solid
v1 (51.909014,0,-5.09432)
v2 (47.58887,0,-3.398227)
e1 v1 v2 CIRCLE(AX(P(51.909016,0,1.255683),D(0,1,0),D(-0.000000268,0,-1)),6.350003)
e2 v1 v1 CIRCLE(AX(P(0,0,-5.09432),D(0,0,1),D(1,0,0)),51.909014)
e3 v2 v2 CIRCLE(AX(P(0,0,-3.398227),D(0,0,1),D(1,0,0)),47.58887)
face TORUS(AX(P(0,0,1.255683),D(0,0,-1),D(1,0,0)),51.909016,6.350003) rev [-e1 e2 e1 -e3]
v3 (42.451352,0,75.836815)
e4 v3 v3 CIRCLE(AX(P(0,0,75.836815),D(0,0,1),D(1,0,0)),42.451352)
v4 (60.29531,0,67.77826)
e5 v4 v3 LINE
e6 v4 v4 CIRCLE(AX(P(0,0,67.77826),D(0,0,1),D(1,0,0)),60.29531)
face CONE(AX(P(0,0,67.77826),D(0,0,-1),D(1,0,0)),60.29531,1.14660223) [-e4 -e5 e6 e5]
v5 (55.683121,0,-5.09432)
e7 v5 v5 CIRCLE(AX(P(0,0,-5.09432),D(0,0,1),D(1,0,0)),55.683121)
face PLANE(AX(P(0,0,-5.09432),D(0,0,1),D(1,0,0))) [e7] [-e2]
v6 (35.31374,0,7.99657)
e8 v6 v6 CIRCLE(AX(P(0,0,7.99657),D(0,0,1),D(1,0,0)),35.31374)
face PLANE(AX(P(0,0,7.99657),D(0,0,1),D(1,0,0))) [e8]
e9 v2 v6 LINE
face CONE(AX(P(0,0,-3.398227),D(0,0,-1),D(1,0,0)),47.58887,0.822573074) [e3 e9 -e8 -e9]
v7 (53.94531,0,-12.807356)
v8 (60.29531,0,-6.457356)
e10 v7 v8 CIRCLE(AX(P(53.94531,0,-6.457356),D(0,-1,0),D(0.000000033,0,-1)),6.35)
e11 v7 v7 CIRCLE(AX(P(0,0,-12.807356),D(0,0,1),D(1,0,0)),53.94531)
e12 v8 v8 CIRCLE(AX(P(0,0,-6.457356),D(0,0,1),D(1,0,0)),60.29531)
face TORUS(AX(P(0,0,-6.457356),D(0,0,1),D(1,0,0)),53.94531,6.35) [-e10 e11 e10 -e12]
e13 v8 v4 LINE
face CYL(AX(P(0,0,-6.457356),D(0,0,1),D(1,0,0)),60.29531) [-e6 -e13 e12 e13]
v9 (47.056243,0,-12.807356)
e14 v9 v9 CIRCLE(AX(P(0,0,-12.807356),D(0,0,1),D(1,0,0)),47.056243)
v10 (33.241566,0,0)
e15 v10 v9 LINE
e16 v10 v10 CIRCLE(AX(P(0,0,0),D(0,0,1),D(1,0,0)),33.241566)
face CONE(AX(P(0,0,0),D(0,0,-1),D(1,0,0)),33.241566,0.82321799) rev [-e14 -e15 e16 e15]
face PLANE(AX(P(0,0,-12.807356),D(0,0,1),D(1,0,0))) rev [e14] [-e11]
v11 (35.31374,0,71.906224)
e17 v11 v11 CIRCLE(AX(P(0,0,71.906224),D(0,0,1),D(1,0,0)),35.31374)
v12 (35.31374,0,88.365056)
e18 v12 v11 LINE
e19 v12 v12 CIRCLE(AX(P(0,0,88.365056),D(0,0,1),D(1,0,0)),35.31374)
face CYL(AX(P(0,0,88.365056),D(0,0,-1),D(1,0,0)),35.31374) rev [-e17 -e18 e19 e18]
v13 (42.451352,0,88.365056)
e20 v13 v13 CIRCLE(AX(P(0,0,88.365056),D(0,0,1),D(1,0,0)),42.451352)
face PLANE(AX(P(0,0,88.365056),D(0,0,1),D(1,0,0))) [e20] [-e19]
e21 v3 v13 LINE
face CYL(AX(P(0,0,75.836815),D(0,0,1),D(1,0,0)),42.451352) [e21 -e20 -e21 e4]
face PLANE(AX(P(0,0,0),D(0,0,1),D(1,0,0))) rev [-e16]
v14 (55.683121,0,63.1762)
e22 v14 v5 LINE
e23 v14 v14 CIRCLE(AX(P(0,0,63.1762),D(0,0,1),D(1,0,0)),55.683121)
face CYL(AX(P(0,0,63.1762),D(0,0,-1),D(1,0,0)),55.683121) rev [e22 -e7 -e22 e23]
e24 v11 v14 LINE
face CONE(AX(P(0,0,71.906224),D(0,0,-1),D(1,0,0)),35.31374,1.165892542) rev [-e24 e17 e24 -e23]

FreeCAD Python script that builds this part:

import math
import FreeCAD as App
import Part
import Sketcher
from FreeCAD import Vector
Q = App.Units.Quantity

doc = App.newDocument("Part")
body = doc.addObject("PartDesign::Body", "Body")

sketch1 = doc.addObject("Sketcher::SketchObject", "Sketch")
body.addObject(sketch1)
sketch1.AttachmentSupport = (doc.XZ_Plane, [""])
sketch1.MapMode = "FlatFace"
sketch1.addGeometry([
    Part.LineSegment(Vector(0, 8, 0), Vector(0, 0, 0)),
    Part.LineSegment(Vector(0, 0, 0), Vector(33.2, 0, 0)),
    Part.LineSegment(Vector(33.2, 0, 0), Vector(47.1, -12.8, 0)),
    Part.LineSegment(Vector(47.1, -12.8, 0), Vector(53.9, -12.8, 0)),
    Part.ArcOfCircle(Part.Circle(Vector(53.9, -6.5, 0), Vector(0, 0, 1), 6.4), math.radians(-90), math.radians(0)),
    Part.LineSegment(Vector(60.3, -6.5, 0), Vector(60.3, 67.8, 0)),
    Part.LineSegment(Vector(60.3, 67.8, 0), Vector(42.5, 75.8, 0)),
    Part.LineSegment(Vector(42.5, 75.8, 0), Vector(42.5, 88.4, 0)),
    Part.LineSegment(Vector(42.5, 88.4, 0), Vector(35.3, 88.4, 0)),
    Part.LineSegment(Vector(35.3, 88.4, 0), Vector(35.3, 71.9, 0)),
    Part.LineSegment(Vector(35.3, 71.9, 0), Vector(55.7, 63.2, 0)),
    Part.LineSegment(Vector(55.7, 63.2, 0), Vector(55.7, -5.1, 0)),
    Part.LineSegment(Vector(55.7, -5.1, 0), Vector(51.9, -5.1, 0)),
    Part.ArcOfCircle(Part.Circle(Vector(51.9, 1.3, 0), Vector(0, 0, 1), 6.4), math.radians(-133), math.radians(-90)),
    Part.LineSegment(Vector(47.6, -3.4, 0), Vector(35.3, 8, 0)),
    Part.LineSegment(Vector(35.3, 8, 0), Vector(0, 8, 0)),
], False)
sketch1.addConstraint([
    Sketcher.Constraint("Coincident", 0, 2, 1, 1),
    Sketcher.Constraint("Coincident", 1, 2, 2, 1),
    Sketcher.Constraint("Coincident", 2, 2, 3, 1),
    Sketcher.Constraint("Tangent", 3, 2, 4, 1),
    Sketcher.Constraint("Tangent", 4, 2, 5, 1),
    Sketcher.Constraint("Coincident", 5, 2, 6, 1),
    Sketcher.Constraint("Coincident", 6, 2, 7, 1),
    Sketcher.Constraint("Coincident", 7, 2, 8, 1),
    Sketcher.Constraint("Coincident", 8, 2, 9, 1),
    Sketcher.Constraint("Coincident", 9, 2, 10, 1),
    Sketcher.Constraint("Coincident", 10, 2, 11, 1),
    Sketcher.Constraint("Coincident", 11, 2, 12, 1),
    Sketcher.Constraint("Tangent", 12, 2, 13, 2),
    Sketcher.Constraint("Tangent", 13, 1, 14, 1),
    Sketcher.Constraint("Coincident", 14, 2, 15, 1),
    Sketcher.Constraint("Coincident", 15, 2, 0, 1),
    Sketcher.Constraint("Vertical", 0),
    Sketcher.Constraint("Horizontal", 1),
    Sketcher.Constraint("Horizontal", 3),
    Sketcher.Constraint("Vertical", 5),
    Sketcher.Constraint("Vertical", 7),
    Sketcher.Constraint("Horizontal", 8),
    Sketcher.Constraint("Vertical", 9),
    Sketcher.Constraint("Vertical", 11),
    Sketcher.Constraint("Horizontal", 12),
    Sketcher.Constraint("Horizontal", 15),
    Sketcher.Constraint("Coincident", 0, 2, -1, 1),
    Sketcher.Constraint("Vertical", 9, 2, 14, 2),
    Sketcher.Constraint("Radius", 4, Q("0.25 in")),
    Sketcher.Constraint("Radius", 13, Q("0.2500001 in")),
    Sketcher.Constraint("DistanceX", 8, 2, 8, 1, 7.137612),
    Sketcher.Constraint("DistanceX", 15, 2, 15, 1, 35.31374),
    Sketcher.Constraint("DistanceY", 0, 2, 0, 1, 7.99657),
    Sketcher.Constraint("DistanceY", 7, 1, 7, 2, 12.528241),
    Sketcher.Constraint("DistanceY", 11, 2, 11, 1, 68.27052),
    Sketcher.Constraint("DistanceY", -1, 1, 10, 2, 63.1762),
    Sketcher.Constraint("Distance", 2, 18.838091),
    Sketcher.Constraint("Distance", 10, 22.16134),
    Sketcher.Constraint("DistanceX", 1, 1, 1, 2, 33.241566),
    Sketcher.Constraint("DistanceX", 3, 1, 3, 2, 6.889067),
    Sketcher.Constraint("DistanceX", 12, 2, 12, 1, 3.774107),
    Sketcher.Constraint("DistanceY", 5, 1, 5, 2, 74.235616),
    Sketcher.Constraint("DistanceY", 9, 2, 9, 1, 16.458832),
    Sketcher.Constraint("DistanceX", -1, 1, 4, 3, 53.94531),
    Sketcher.Constraint("DistanceX", -1, 1, 10, 2, 55.683121),
])
revolution = doc.addObject("PartDesign::Revolution", "Revolution")
body.addObject(revolution)
revolution.Profile = sketch1
revolution.ReferenceAxis = (sketch1, ["V_Axis"])
revolution.Angle = 360

doc.recompute()
